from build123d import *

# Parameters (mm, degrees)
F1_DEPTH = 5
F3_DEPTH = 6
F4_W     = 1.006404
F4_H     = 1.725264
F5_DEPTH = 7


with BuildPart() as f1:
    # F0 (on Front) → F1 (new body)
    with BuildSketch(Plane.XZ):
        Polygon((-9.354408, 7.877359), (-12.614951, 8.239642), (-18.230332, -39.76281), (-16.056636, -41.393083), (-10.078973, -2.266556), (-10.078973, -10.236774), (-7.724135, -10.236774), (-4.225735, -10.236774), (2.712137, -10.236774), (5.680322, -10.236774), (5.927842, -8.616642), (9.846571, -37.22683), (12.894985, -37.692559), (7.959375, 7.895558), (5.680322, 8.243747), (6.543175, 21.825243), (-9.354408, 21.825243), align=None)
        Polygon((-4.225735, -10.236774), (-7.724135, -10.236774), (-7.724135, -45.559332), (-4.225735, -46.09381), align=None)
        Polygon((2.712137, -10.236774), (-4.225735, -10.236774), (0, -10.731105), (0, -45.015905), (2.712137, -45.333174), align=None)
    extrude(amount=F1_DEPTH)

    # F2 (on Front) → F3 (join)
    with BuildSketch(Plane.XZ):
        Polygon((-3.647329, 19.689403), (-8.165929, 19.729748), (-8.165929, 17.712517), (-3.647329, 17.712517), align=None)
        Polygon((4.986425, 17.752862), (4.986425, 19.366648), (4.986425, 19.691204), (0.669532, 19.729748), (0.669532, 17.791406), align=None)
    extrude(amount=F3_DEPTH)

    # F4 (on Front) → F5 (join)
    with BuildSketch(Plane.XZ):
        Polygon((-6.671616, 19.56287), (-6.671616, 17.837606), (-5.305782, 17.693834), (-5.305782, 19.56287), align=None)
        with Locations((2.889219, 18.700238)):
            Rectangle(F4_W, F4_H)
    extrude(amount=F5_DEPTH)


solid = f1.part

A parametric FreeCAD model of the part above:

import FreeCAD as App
import Part
import Sketcher
Q = App.Units.Quantity


def add_polygon(sketch, points):
    """Adds a closed chain of lines whose ends are joined by coincident constraints."""
    first, n = sketch.GeometryCount, len(points)
    for a, b in zip(points, points[1:] + points[:1]):
        sketch.addGeometry(Part.LineSegment(App.Vector(*a, 0), App.Vector(*b, 0)), False)
    for i in range(n):
        sketch.addConstraint(Sketcher.Constraint("Coincident", first + i, 2, first + (i + 1) % n, 1))

doc = App.newDocument("Part")
params = doc.addObject("Spreadsheet::Sheet", "Params")
for row, (alias, value) in enumerate([
    ("pad1_length", "5 mm"),
    ("pad2_length", "6 mm"),
    ("pad3_length", "7 mm"),
], start=1):
    params.set(f"A{row}", alias)
    params.set(f"B{row}", "=" + value)
    params.setAlias(f"B{row}", alias)

body = doc.addObject("PartDesign::Body", "Body")

sketch1 = body.newObject("Sketcher::SketchObject", "Sketch")
sketch1.AttachmentSupport = (doc.getObject("XZ_Plane"), [""])
sketch1.MapMode = "FlatFace"
add_polygon(sketch1, [(-9.4, 7.9), (-12.6, 8.2), (-18.2, -39.8), (-16.1, -41.4), (-10.1, -2.3), (-10.1, -10.2), (-7.7, -10.2), (-7.7, -45.6), (-4.2, -46.1), (-4.2, -10.2), (0, -10.7), (0, -45), (2.7, -45.3), (2.7, -10.2), (5.7, -10.2), (5.9, -8.6), (9.8, -37.2), (12.9, -37.7), (8, 7.9), (5.7, 8.2), (6.5, 21.8), (-9.4, 21.8)])
sketch1.addConstraint(Sketcher.Constraint("Vertical", 4))
sketch1.addConstraint(Sketcher.Constraint("Horizontal", 5))
sketch1.addConstraint(Sketcher.Constraint("Vertical", 6))
sketch1.addConstraint(Sketcher.Constraint("Vertical", 8))
sketch1.addConstraint(Sketcher.Constraint("Vertical", 10))
sketch1.addConstraint(Sketcher.Constraint("Vertical", 12))
sketch1.addConstraint(Sketcher.Constraint("Horizontal", 13))
sketch1.addConstraint(Sketcher.Constraint("Horizontal", 20))
sketch1.addConstraint(Sketcher.Constraint("Vertical", 21))
sketch1.addConstraint(Sketcher.Constraint("PointOnObject", 9, 2, -2))
sketch1.addConstraint(Sketcher.Constraint("Perpendicular", 3, 7))
sketch1.addConstraint(Sketcher.Constraint("Perpendicular", 1, 9))
sketch1.addConstraint(Sketcher.Constraint("Parallel", 9, 11))
sketch1.addConstraint(Sketcher.Constraint("Perpendicular", 7, 14))
sketch1.addConstraint(Sketcher.Constraint("Perpendicular", 14, 16))
sketch1.addConstraint(Sketcher.Constraint("Parallel", 16, 18))
sketch1.addConstraint(Sketcher.Constraint("Horizontal", 5, 2, 8, 2))
sketch1.addConstraint(Sketcher.Constraint("Horizontal", 8, 2, 12, 2))
sketch1.addConstraint(Sketcher.Constraint("Vertical", 13, 2, 18, 2))
sketch1.addConstraint(Sketcher.Constraint("DistanceY", 10, 2, 10, 1, Q("34.2848 mm")))
sketch1.addConstraint(Sketcher.Constraint("DistanceY", 12, 1, 12, 2, Q("35.0964 mm")))
sketch1.addConstraint(Sketcher.Constraint("DistanceY", 7, 2, 1, 2, Q("6.331 mm")))
sketch1.addConstraint(Sketcher.Constraint("DistanceY", 4, 2, 4, 1, Q("7.970218 mm")))
sketch1.addConstraint(Sketcher.Constraint("DistanceX", 2, 2, 5, 2, Q("8.332501 mm")))
sketch1.addConstraint(Sketcher.Constraint("DistanceX", 6, 2, 7, 2, Q("3.4984 mm")))
sketch1.addConstraint(Sketcher.Constraint("DistanceY", 6, 2, 15, 2, Q("8.332502 mm")))
sketch1.addConstraint(Sketcher.Constraint("DistanceY", 14, 2, 17, 2, Q("16.5122 mm")))
sketch1.addConstraint(Sketcher.Constraint("DistanceX", 19, 2, 17, 2, Q("1.4162 mm")))
sketch1.addConstraint(Sketcher.Constraint("DistanceY", 0, 2, 19, 2, Q("13.585601 mm")))
sketch1.addConstraint(Sketcher.Constraint("DistanceY", 3, 2, 19, 2, Q("24.091799 mm")))
sketch1.addConstraint(Sketcher.Constraint("DistanceY", 21, 2, 17, 2, Q("0.018199 mm")))
sketch1.addConstraint(Sketcher.Constraint("Distance", 0, Q("3.280608 mm")))
sketch1.addConstraint(Sketcher.Constraint("Distance", 2, Q("2.717121 mm")))
sketch1.addConstraint(Sketcher.Constraint("Distance", 3, Q("39.58052 mm")))
sketch1.addConstraint(Sketcher.Constraint("Distance", 9, Q("4.25455 mm")))
sketch1.addConstraint(Sketcher.Constraint("Distance", 11, Q("2.730631 mm")))
sketch1.addConstraint(Sketcher.Constraint("Distance", 14, Q("1.638931 mm")))
sketch1.addConstraint(Sketcher.Constraint("DistanceX", 5, 1, 5, 2, Q("2.354838 mm")))
sketch1.addConstraint(Sketcher.Constraint("DistanceX", 13, 1, 13, 2, Q("2.968185 mm")))
sketch1.addConstraint(Sketcher.Constraint("DistanceX", 20, 2, 20, 1, Q("15.897583 mm")))
sketch1.addConstraint(Sketcher.Constraint("DistanceY", 6, 2, 6, 1, Q("35.322558 mm")))
sketch1.addConstraint(Sketcher.Constraint("DistanceY", 1, 2, -1, 1, Q("39.76281 mm")))
sketch1.addConstraint(Sketcher.Constraint("DistanceX", -1, 1, 15, 2, Q("9.846571 mm")))
sketch1.addConstraint(Sketcher.Constraint("DistanceY", 16, 2, -1, 1, Q("37.692559 mm")))
pad1 = body.newObject("PartDesign::Pad", "Pad")
pad1.Profile = sketch1
pad1.setExpression("Length", "Params.pad1_length")

sketch2 = body.newObject("Sketcher::SketchObject", "Sketch001")
sketch2.AttachmentSupport = (doc.getObject("XZ_Plane"), [""])
sketch2.MapMode = "FlatFace"
add_polygon(sketch2, [(-3.6, 19.7), (-8.2, 19.7), (-8.2, 17.7), (-3.6, 17.7)])
add_polygon(sketch2, [(5, 17.8), (5, 19.7), (0.7, 19.7), (0.7, 17.8)])
sketch2.addConstraint(Sketcher.Constraint("Vertical", 1))
sketch2.addConstraint(Sketcher.Constraint("Horizontal", 2))
sketch2.addConstraint(Sketcher.Constraint("Vertical", 3))
sketch2.addConstraint(Sketcher.Constraint("Vertical", 4))
sketch2.addConstraint(Sketcher.Constraint("Vertical", 6))
sketch2.addConstraint(Sketcher.Constraint("Parallel", 0, 5))
sketch2.addConstraint(Sketcher.Constraint("Parallel", 5, 7))
sketch2.addConstraint(Sketcher.Constraint("Horizontal", 0, 2, 5, 2))
sketch2.addConstraint(Sketcher.Constraint("DistanceX", 2, 1, 2, 2, Q("4.5186 mm")))
sketch2.addConstraint(Sketcher.Constraint("DistanceY", 1, 2, 1, 1, Q("2.017231 mm")))
sketch2.addConstraint(Sketcher.Constraint("DistanceY", 4, 1, 4, 2, Q("1.938342 mm")))
sketch2.addConstraint(Sketcher.Constraint("DistanceY", 3, 2, 4, 2, Q("0.001801 mm")))
sketch2.addConstraint(Sketcher.Constraint("DistanceY", 6, 2, 4, 2, Q("1.899798 mm")))
sketch2.addConstraint(Sketcher.Constraint("DistanceX", 0, 2, -1, 1, Q("8.165929 mm")))
sketch2.addConstraint(Sketcher.Constraint("DistanceY", -1, 1, 0, 2, Q("19.729748 mm")))
sketch2.addConstraint(Sketcher.Constraint("DistanceX", 3, 2, 5, 2, Q("4.316861 mm")))
pad2 = body.newObject("PartDesign::Pad", "Pad001")
pad2.Profile = sketch2
pad2.setExpression("Length", "Params.pad2_length")

sketch3 = body.newObject("Sketcher::SketchObject", "Sketch002")
sketch3.AttachmentSupport = (doc.getObject("XZ_Plane"), [""])
sketch3.MapMode = "FlatFace"
add_polygon(sketch3, [(-6.7, 19.6), (-6.7, 17.8), (-5.3, 17.7), (-5.3, 19.6)])
add_polygon(sketch3, [(2.4, 19.6), (2.4, 17.8), (3.4, 17.8), (3.4, 19.6)])
sketch3.addConstraint(Sketcher.Constraint("Vertical", 0))
sketch3.addConstraint(Sketcher.Constraint("Vertical", 2))
sketch3.addConstraint(Sketcher.Constraint("Horizontal", 3))
sketch3.addConstraint(Sketcher.Constraint("Vertical", 4))
sketch3.addConstraint(Sketcher.Constraint("Horizontal", 5))
sketch3.addConstraint(Sketcher.Constraint("Vertical", 6))
sketch3.addConstraint(Sketcher.Constraint("Horizontal", 7))
sketch3.addConstraint(Sketcher.Constraint("Horizontal", 0, 2, 4, 2))
sketch3.addConstraint(Sketcher.Constraint("Horizontal", 3, 2, 6, 2))
sketch3.addConstraint(Sketcher.Constraint("DistanceX", 1, 2, 4, 2, Q("7.691799 mm")))
sketch3.addConstraint(Sketcher.Constraint("Distance", 1, Q("1.37338 mm")))
sketch3.addConstraint(Sketcher.Constraint("DistanceX", 3, 2, 3, 1, Q("1.365834 mm")))
sketch3.addConstraint(Sketcher.Constraint("DistanceX", 5, 1, 5, 2, Q("1.006404 mm")))
sketch3.addConstraint(Sketcher.Constraint("DistanceY", 0, 2, 0, 1, Q("1.725264 mm")))
sketch3.addConstraint(Sketcher.Constraint("DistanceX", 1, 2, -1, 1, Q("5.305782 mm")))
sketch3.addConstraint(Sketcher.Constraint("DistanceY", -1, 1, 2, 2, Q("19.56287 mm")))
pad3 = body.newObject("PartDesign::Pad", "Pad002")
pad3.Profile = sketch3
pad3.setExpression("Length", "Params.pad3_length")

doc.recompute()
